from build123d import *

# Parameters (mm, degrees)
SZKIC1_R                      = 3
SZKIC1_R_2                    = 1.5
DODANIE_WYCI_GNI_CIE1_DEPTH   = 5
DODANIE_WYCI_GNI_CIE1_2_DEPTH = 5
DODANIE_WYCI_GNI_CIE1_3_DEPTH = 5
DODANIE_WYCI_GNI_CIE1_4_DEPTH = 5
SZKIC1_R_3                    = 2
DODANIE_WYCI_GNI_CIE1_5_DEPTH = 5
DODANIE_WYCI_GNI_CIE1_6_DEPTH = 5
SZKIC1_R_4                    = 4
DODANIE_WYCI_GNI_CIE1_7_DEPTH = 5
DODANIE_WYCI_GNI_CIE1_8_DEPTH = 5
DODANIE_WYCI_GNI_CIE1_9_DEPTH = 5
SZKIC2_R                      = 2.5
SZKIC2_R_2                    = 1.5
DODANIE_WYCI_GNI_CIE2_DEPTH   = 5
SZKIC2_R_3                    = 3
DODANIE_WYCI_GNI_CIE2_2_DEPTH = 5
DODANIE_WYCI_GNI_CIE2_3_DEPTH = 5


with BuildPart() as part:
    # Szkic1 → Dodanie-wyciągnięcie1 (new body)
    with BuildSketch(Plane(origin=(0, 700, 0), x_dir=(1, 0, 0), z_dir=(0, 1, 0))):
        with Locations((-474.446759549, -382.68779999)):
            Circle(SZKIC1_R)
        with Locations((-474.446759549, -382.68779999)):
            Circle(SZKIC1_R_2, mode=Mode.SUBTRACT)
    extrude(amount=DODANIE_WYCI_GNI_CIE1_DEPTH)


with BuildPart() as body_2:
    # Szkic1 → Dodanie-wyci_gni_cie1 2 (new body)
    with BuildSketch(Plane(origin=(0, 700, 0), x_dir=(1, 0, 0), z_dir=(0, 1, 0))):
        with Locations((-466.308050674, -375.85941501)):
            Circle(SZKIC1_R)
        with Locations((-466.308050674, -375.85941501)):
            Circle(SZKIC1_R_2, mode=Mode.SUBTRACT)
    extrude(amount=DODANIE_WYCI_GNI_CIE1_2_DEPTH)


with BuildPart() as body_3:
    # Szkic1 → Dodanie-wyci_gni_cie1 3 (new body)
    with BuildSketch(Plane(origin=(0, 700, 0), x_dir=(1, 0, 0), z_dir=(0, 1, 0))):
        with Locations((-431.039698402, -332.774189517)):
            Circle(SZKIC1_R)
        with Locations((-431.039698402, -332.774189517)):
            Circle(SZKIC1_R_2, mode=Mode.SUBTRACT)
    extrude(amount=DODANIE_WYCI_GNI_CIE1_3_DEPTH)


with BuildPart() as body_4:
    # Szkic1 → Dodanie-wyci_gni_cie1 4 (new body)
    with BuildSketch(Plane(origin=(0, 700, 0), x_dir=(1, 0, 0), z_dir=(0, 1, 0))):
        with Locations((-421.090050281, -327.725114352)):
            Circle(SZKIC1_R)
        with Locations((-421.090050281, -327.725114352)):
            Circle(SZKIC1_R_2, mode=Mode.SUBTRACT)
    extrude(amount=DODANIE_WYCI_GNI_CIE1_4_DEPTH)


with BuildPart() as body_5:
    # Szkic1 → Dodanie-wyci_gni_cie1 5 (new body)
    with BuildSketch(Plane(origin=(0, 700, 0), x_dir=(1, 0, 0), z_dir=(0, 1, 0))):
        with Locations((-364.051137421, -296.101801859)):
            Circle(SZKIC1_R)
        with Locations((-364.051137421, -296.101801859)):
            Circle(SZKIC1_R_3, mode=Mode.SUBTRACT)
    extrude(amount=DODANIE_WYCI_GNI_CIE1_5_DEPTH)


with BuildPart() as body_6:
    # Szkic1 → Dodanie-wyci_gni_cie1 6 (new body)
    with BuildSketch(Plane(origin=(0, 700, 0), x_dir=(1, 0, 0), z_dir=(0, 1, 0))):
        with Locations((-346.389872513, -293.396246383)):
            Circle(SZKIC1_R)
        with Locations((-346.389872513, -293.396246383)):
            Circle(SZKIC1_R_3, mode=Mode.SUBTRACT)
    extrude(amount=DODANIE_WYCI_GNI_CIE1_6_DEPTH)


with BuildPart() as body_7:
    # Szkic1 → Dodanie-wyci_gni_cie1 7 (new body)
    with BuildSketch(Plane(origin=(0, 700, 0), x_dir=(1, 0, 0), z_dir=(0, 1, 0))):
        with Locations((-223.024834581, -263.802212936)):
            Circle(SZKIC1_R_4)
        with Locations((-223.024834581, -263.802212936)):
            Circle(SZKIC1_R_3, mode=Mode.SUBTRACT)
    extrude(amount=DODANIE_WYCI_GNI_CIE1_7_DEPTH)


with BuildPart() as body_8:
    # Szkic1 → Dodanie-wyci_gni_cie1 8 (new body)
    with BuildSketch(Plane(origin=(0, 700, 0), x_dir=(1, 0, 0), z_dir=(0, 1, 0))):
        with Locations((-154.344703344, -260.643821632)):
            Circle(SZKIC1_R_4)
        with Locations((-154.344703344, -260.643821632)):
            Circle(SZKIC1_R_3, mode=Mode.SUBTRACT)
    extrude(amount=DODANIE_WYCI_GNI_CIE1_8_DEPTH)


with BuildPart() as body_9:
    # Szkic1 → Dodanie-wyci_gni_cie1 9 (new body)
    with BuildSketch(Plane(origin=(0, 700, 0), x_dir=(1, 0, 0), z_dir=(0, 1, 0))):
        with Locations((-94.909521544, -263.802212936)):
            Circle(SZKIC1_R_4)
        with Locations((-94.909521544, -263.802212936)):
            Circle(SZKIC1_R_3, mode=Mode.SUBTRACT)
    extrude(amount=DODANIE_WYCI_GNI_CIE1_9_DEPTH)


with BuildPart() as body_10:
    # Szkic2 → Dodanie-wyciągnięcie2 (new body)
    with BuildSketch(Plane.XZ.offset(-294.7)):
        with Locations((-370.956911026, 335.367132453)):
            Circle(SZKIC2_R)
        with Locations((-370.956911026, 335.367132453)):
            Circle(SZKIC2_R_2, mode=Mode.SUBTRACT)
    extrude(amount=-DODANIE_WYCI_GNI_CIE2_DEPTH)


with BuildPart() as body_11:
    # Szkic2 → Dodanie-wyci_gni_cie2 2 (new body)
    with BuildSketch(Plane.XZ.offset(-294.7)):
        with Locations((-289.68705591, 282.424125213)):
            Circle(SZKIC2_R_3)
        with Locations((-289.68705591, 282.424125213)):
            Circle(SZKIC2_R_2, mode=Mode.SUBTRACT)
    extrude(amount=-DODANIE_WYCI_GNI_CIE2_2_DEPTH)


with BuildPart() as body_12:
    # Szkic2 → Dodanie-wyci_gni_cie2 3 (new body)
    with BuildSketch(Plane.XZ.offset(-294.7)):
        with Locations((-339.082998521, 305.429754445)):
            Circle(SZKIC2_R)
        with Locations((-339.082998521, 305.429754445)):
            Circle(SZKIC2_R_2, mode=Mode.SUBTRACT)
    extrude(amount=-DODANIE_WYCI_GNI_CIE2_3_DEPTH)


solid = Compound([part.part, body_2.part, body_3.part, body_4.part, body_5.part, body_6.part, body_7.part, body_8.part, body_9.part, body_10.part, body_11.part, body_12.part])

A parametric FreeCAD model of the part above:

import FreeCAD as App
import Part
import Sketcher
Q = App.Units.Quantity

doc = App.newDocument("Part")
body = doc.addObject("PartDesign::Body", "Body")

# Sketch on XZ plane
sketch1 = body.newObject("Sketcher::SketchObject", "Sketch")
sketch1.AttachmentSupport = (doc.getObject("XZ_Plane"), [""])
sketch1.MapMode = "FlatFace"
sketch1.AttachmentOffset = App.Placement(App.Vector(0, 0, -700), App.Rotation())
sketch1.addGeometry(Part.Circle(App.Vector(-474.44676, 382.6878, 0), App.Vector(0, 0, 1), 3), False)
sketch1.addGeometry(Part.Circle(App.Vector(-474.44676, 382.6878, 0), App.Vector(0, 0, 1), 1.5), False)
sketch1.addConstraint(Sketcher.Constraint("Coincident", 1, 3, 0, 3))
sketch1.addConstraint(Sketcher.Constraint("Diameter", 0, Q("6 mm")))
sketch1.addConstraint(Sketcher.Constraint("Diameter", 1, Q("3 mm")))
sketch1.addConstraint(Sketcher.Constraint("DistanceY", -1, 1, 0, 3, Q("382.6878 mm")))
sketch1.addConstraint(Sketcher.Constraint("DistanceX", 0, 3, -1, 1, Q("474.44676 mm")))
pad1 = body.newObject("PartDesign::Pad", "Pad")
pad1.Profile = sketch1
pad1.Length = 5
pad1.Reversed = True
body2 = doc.addObject("PartDesign::Body", "Body001")

# Sketch on XZ plane
sketch2 = body2.newObject("Sketcher::SketchObject", "Sketch001")
sketch2.AttachmentSupport = (doc.getObject("XZ_Plane001"), [""])
sketch2.MapMode = "FlatFace"
sketch2.AttachmentOffset = App.Placement(App.Vector(0, 0, -700), App.Rotation())
sketch2.addGeometry(Part.Circle(App.Vector(-466.308051, 375.859415, 0), App.Vector(0, 0, 1), 3), False)
sketch2.addGeometry(Part.Circle(App.Vector(-466.308051, 375.859415, 0), App.Vector(0, 0, 1), 1.5), False)
sketch2.addConstraint(Sketcher.Constraint("Coincident", 1, 3, 0, 3))
sketch2.addConstraint(Sketcher.Constraint("Diameter", 0, Q("6 mm")))
sketch2.addConstraint(Sketcher.Constraint("Diameter", 1, Q("3 mm")))
sketch2.addConstraint(Sketcher.Constraint("DistanceX", 0, 3, -1, 1, Q("466.308051 mm")))
sketch2.addConstraint(Sketcher.Constraint("DistanceY", -1, 1, 0, 3, Q("375.859415 mm")))
pad2 = body2.newObject("PartDesign::Pad", "Pad001")
pad2.Profile = sketch2
pad2.Length = 5
pad2.Reversed = True
body3 = doc.addObject("PartDesign::Body", "Body002")

# Sketch on XZ plane
sketch3 = body3.newObject("Sketcher::SketchObject", "Sketch002")
sketch3.AttachmentSupport = (doc.getObject("XZ_Plane002"), [""])
sketch3.MapMode = "FlatFace"
sketch3.AttachmentOffset = App.Placement(App.Vector(0, 0, -700), App.Rotation())
sketch3.addGeometry(Part.Circle(App.Vector(-431.039698, 332.77419, 0), App.Vector(0, 0, 1), 3), False)
sketch3.addGeometry(Part.Circle(App.Vector(-431.039698, 332.77419, 0), App.Vector(0, 0, 1), 1.5), False)
sketch3.addConstraint(Sketcher.Constraint("Coincident", 1, 3, 0, 3))
sketch3.addConstraint(Sketcher.Constraint("Diameter", 0, Q("6 mm")))
sketch3.addConstraint(Sketcher.Constraint("Diameter", 1, Q("3 mm")))
sketch3.addConstraint(Sketcher.Constraint("DistanceX", 0, 3, -1, 1, Q("431.039698 mm")))
sketch3.addConstraint(Sketcher.Constraint("DistanceY", -1, 1, 0, 3, Q("332.77419 mm")))
pad3 = body3.newObject("PartDesign::Pad", "Pad002")
pad3.Profile = sketch3
pad3.Length = 5
pad3.Reversed = True
body4 = doc.addObject("PartDesign::Body", "Body003")

# Sketch on XZ plane
sketch4 = body4.newObject("Sketcher::SketchObject", "Sketch003")
sketch4.AttachmentSupport = (doc.getObject("XZ_Plane003"), [""])
sketch4.MapMode = "FlatFace"
sketch4.AttachmentOffset = App.Placement(App.Vector(0, 0, -700), App.Rotation())
sketch4.addGeometry(Part.Circle(App.Vector(-421.09005, 327.725114, 0), App.Vector(0, 0, 1), 3), False)
sketch4.addGeometry(Part.Circle(App.Vector(-421.09005, 327.725114, 0), App.Vector(0, 0, 1), 1.5), False)
sketch4.addConstraint(Sketcher.Constraint("Coincident", 1, 3, 0, 3))
sketch4.addConstraint(Sketcher.Constraint("Diameter", 0, Q("6 mm")))
sketch4.addConstraint(Sketcher.Constraint("Diameter", 1, Q("3 mm")))
sketch4.addConstraint(Sketcher.Constraint("DistanceX", 0, 3, -1, 1, Q("421.09005 mm")))
sketch4.addConstraint(Sketcher.Constraint("DistanceY", -1, 1, 0, 3, Q("327.725114 mm")))
pad4 = body4.newObject("PartDesign::Pad", "Pad003")
pad4.Profile = sketch4
pad4.Length = 5
pad4.Reversed = True
body5 = doc.addObject("PartDesign::Body", "Body004")

# Sketch on XZ plane
sketch5 = body5.newObject("Sketcher::SketchObject", "Sketch004")
sketch5.AttachmentSupport = (doc.getObject("XZ_Plane004"), [""])
sketch5.MapMode = "FlatFace"
sketch5.AttachmentOffset = App.Placement(App.Vector(0, 0, -700), App.Rotation())
sketch5.addGeometry(Part.Circle(App.Vector(-364.051137, 296.101802, 0), App.Vector(0, 0, 1), 3), False)
sketch5.addGeometry(Part.Circle(App.Vector(-364.051137, 296.101802, 0), App.Vector(0, 0, 1), 2), False)
sketch5.addConstraint(Sketcher.Constraint("Coincident", 1, 3, 0, 3))
sketch5.addConstraint(Sketcher.Constraint("Diameter", 0, Q("6 mm")))
sketch5.addConstraint(Sketcher.Constraint("Diameter", 1, Q("4 mm")))
sketch5.addConstraint(Sketcher.Constraint("DistanceY", -1, 1, 0, 3, Q("296.101802 mm")))
sketch5.addConstraint(Sketcher.Constraint("DistanceX", 0, 3, -1, 1, Q("364.051137 mm")))
pad5 = body5.newObject("PartDesign::Pad", "Pad004")
pad5.Profile = sketch5
pad5.Length = 5
pad5.Reversed = True
body6 = doc.addObject("PartDesign::Body", "Body005")

# Sketch on XZ plane
sketch6 = body6.newObject("Sketcher::SketchObject", "Sketch005")
sketch6.AttachmentSupport = (doc.getObject("XZ_Plane005"), [""])
sketch6.MapMode = "FlatFace"
sketch6.AttachmentOffset = App.Placement(App.Vector(0, 0, -700), App.Rotation())
sketch6.addGeometry(Part.Circle(App.Vector(-346.389873, 293.396246, 0), App.Vector(0, 0, 1), 3), False)
sketch6.addGeometry(Part.Circle(App.Vector(-346.389873, 293.396246, 0), App.Vector(0, 0, 1), 2), False)
sketch6.addConstraint(Sketcher.Constraint("Coincident", 1, 3, 0, 3))
sketch6.addConstraint(Sketcher.Constraint("Diameter", 0, Q("6 mm")))
sketch6.addConstraint(Sketcher.Constraint("Diameter", 1, Q("4 mm")))
sketch6.addConstraint(Sketcher.Constraint("DistanceX", 0, 3, -1, 1, Q("346.389873 mm")))
sketch6.addConstraint(Sketcher.Constraint("DistanceY", -1, 1, 0, 3, Q("293.396246 mm")))
pad6 = body6.newObject("PartDesign::Pad", "Pad005")
pad6.Profile = sketch6
pad6.Length = 5
pad6.Reversed = True
body7 = doc.addObject("PartDesign::Body", "Body006")

# Sketch on XZ plane
sketch7 = body7.newObject("Sketcher::SketchObject", "Sketch006")
sketch7.AttachmentSupport = (doc.getObject("XZ_Plane006"), [""])
sketch7.MapMode = "FlatFace"
sketch7.AttachmentOffset = App.Placement(App.Vector(0, 0, -700), App.Rotation())
sketch7.addGeometry(Part.Circle(App.Vector(-223.024835, 263.802213, 0), App.Vector(0, 0, 1), 4), False)
sketch7.addGeometry(Part.Circle(App.Vector(-223.024835, 263.802213, 0), App.Vector(0, 0, 1), 2), False)
sketch7.addConstraint(Sketcher.Constraint("Coincident", 1, 3, 0, 3))
sketch7.addConstraint(Sketcher.Constraint("Diameter", 0, Q("8 mm")))
sketch7.addConstraint(Sketcher.Constraint("Diameter", 1, Q("4 mm")))
sketch7.addConstraint(Sketcher.Constraint("DistanceX", 0, 3, -1, 1, Q("223.024835 mm")))
sketch7.addConstraint(Sketcher.Constraint("DistanceY", -1, 1, 0, 3, Q("263.802213 mm")))
pad7 = body7.newObject("PartDesign::Pad", "Pad006")
pad7.Profile = sketch7
pad7.Length = 5
pad7.Reversed = True
body8 = doc.addObject("PartDesign::Body", "Body007")

# Sketch on XZ plane
sketch8 = body8.newObject("Sketcher::SketchObject", "Sketch007")
sketch8.AttachmentSupport = (doc.getObject("XZ_Plane007"), [""])
sketch8.MapMode = "FlatFace"
sketch8.AttachmentOffset = App.Placement(App.Vector(0, 0, -700), App.Rotation())
sketch8.addGeometry(Part.Circle(App.Vector(-154.344703, 260.643822, 0), App.Vector(0, 0, 1), 4), False)
sketch8.addGeometry(Part.Circle(App.Vector(-154.344703, 260.643822, 0), App.Vector(0, 0, 1), 2), False)
sketch8.addConstraint(Sketcher.Constraint("Coincident", 1, 3, 0, 3))
sketch8.addConstraint(Sketcher.Constraint("Diameter", 0, Q("8 mm")))
sketch8.addConstraint(Sketcher.Constraint("Diameter", 1, Q("4 mm")))
sketch8.addConstraint(Sketcher.Constraint("DistanceY", -1, 1, 0, 3, Q("260.643822 mm")))
sketch8.addConstraint(Sketcher.Constraint("DistanceX", 0, 3, -1, 1, Q("154.344703 mm")))
pad8 = body8.newObject("PartDesign::Pad", "Pad007")
pad8.Profile = sketch8
pad8.Length = 5
pad8.Reversed = True
body9 = doc.addObject("PartDesign::Body", "Body008")

# Sketch on XZ plane
sketch9 = body9.newObject("Sketcher::SketchObject", "Sketch008")
sketch9.AttachmentSupport = (doc.getObject("XZ_Plane008"), [""])
sketch9.MapMode = "FlatFace"
sketch9.AttachmentOffset = App.Placement(App.Vector(0, 0, -700), App.Rotation())
sketch9.addGeometry(Part.Circle(App.Vector(-94.909522, 263.802213, 0), App.Vector(0, 0, 1), 4), False)
sketch9.addGeometry(Part.Circle(App.Vector(-94.909522, 263.802213, 0), App.Vector(0, 0, 1), 2), False)
sketch9.addConstraint(Sketcher.Constraint("Coincident", 1, 3, 0, 3))
sketch9.addConstraint(Sketcher.Constraint("Diameter", 0, Q("8 mm")))
sketch9.addConstraint(Sketcher.Constraint("Diameter", 1, Q("4 mm")))
sketch9.addConstraint(Sketcher.Constraint("DistanceX", 0, 3, -1, 1, Q("94.909522 mm")))
sketch9.addConstraint(Sketcher.Constraint("DistanceY", -1, 1, 0, 3, Q("263.802213 mm")))
pad9 = body9.newObject("PartDesign::Pad", "Pad008")
pad9.Profile = sketch9
pad9.Length = 5
pad9.Reversed = True
body10 = doc.addObject("PartDesign::Body", "Body009")

# Sketch on XZ plane
sketch10 = body10.newObject("Sketcher::SketchObject", "Sketch009")
sketch10.AttachmentSupport = (doc.getObject("XZ_Plane009"), [""])
sketch10.MapMode = "FlatFace"
sketch10.AttachmentOffset = App.Placement(App.Vector(0, 0, -294.7), App.Rotation())
sketch10.addGeometry(Part.Circle(App.Vector(-370.956911, 335.367132, 0), App.Vector(0, 0, 1), 2.5), False)
sketch10.addGeometry(Part.Circle(App.Vector(-370.956911, 335.367132, 0), App.Vector(0, 0, 1), 1.5), False)
sketch10.addConstraint(Sketcher.Constraint("Coincident", 1, 3, 0, 3))
sketch10.addConstraint(Sketcher.Constraint("Diameter", 0, Q("5 mm")))
sketch10.addConstraint(Sketcher.Constraint("Diameter", 1, Q("3 mm")))
sketch10.addConstraint(Sketcher.Constraint("DistanceX", 0, 3, -1, 1, Q("370.956911 mm")))
sketch10.addConstraint(Sketcher.Constraint("DistanceY", -1, 1, 0, 3, Q("335.367132 mm")))
pad10 = body10.newObject("PartDesign::Pad", "Pad009")
pad10.Profile = sketch10
pad10.Length = 5
pad10.Reversed = True
body11 = doc.addObject("PartDesign::Body", "Body010")

# Sketch on XZ plane
sketch11 = body11.newObject("Sketcher::SketchObject", "Sketch010")
sketch11.AttachmentSupport = (doc.getObject("XZ_Plane010"), [""])
sketch11.MapMode = "FlatFace"
sketch11.AttachmentOffset = App.Placement(App.Vector(0, 0, -294.7), App.Rotation())
sketch11.addGeometry(Part.Circle(App.Vector(-289.687056, 282.424125, 0), App.Vector(0, 0, 1), 3), False)
sketch11.addGeometry(Part.Circle(App.Vector(-289.687056, 282.424125, 0), App.Vector(0, 0, 1), 1.5), False)
sketch11.addConstraint(Sketcher.Constraint("Coincident", 1, 3, 0, 3))
sketch11.addConstraint(Sketcher.Constraint("Diameter", 0, Q("6 mm")))
sketch11.addConstraint(Sketcher.Constraint("Diameter", 1, Q("3 mm")))
sketch11.addConstraint(Sketcher.Constraint("DistanceX", 0, 3, -1, 1, Q("289.687056 mm")))
sketch11.addConstraint(Sketcher.Constraint("DistanceY", -1, 1, 0, 3, Q("282.424125 mm")))
pad11 = body11.newObject("PartDesign::Pad", "Pad010")
pad11.Profile = sketch11
pad11.Length = 5
pad11.Reversed = True
body12 = doc.addObject("PartDesign::Body", "Body011")

# Sketch on XZ plane
sketch12 = body12.newObject("Sketcher::SketchObject", "Sketch011")
sketch12.AttachmentSupport = (doc.getObject("XZ_Plane011"), [""])
sketch12.MapMode = "FlatFace"
sketch12.AttachmentOffset = App.Placement(App.Vector(0, 0, -294.7), App.Rotation())
sketch12.addGeometry(Part.Circle(App.Vector(-339.082999, 305.429754, 0), App.Vector(0, 0, 1), 2.5), False)
sketch12.addGeometry(Part.Circle(App.Vector(-339.082999, 305.429754, 0), App.Vector(0, 0, 1), 1.5), False)
sketch12.addConstraint(Sketcher.Constraint("Coincident", 1, 3, 0, 3))
sketch12.addConstraint(Sketcher.Constraint("Diameter", 0, Q("5 mm")))
sketch12.addConstraint(Sketcher.Constraint("Diameter", 1, Q("3 mm")))
sketch12.addConstraint(Sketcher.Constraint("DistanceX", 0, 3, -1, 1, Q("339.082999 mm")))
sketch12.addConstraint(Sketcher.Constraint("DistanceY", -1, 1, 0, 3, Q("305.429754 mm")))
pad12 = body12.newObject("PartDesign::Pad", "Pad011")
pad12.Profile = sketch12
pad12.Length = 5
pad12.Reversed = True

doc.recompute()
